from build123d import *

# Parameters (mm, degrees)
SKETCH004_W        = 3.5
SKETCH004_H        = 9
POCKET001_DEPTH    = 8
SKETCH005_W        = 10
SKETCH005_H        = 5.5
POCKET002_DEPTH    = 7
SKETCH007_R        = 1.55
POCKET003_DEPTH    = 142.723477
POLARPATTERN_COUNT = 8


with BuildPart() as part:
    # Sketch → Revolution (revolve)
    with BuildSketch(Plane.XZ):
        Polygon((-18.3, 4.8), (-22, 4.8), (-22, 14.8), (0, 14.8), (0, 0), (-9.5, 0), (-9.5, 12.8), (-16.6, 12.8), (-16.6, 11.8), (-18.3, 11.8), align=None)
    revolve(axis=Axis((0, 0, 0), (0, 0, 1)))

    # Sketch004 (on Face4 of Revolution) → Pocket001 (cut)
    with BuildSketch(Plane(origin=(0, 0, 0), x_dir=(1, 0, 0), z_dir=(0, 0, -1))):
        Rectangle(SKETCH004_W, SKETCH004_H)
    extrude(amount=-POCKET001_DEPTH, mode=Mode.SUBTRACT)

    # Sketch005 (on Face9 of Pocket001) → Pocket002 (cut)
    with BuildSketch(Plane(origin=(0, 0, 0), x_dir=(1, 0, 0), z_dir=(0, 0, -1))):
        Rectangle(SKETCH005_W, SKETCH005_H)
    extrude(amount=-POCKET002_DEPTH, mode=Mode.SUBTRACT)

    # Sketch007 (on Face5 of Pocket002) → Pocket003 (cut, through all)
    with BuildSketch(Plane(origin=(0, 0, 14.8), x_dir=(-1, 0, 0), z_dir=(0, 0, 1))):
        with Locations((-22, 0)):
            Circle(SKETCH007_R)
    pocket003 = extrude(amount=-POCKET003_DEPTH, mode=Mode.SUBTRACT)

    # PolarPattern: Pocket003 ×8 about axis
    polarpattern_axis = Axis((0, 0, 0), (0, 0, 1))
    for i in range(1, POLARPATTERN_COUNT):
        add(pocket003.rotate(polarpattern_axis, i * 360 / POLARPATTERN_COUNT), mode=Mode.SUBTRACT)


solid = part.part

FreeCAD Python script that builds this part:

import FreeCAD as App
import Part
import Sketcher

doc = App.newDocument("Part")
body = doc.addObject("PartDesign::Body", "Body")

# Sketch on XZ plane
sketch1 = body.newObject("Sketcher::SketchObject", "Sketch")
sketch1.AttachmentSupport = (doc.getObject("XZ_Plane"), [""])
sketch1.MapMode = "FlatFace"
sketch1.addGeometry([
    Part.LineSegment(App.Vector(-22, 4.8, 0), App.Vector(-18.3, 4.8, 0)),  # 0
    Part.LineSegment(App.Vector(-18.3, 4.8, 0), App.Vector(-18.3, 11.8, 0)),  # 1
    Part.LineSegment(App.Vector(-18.3, 11.8, 0), App.Vector(-16.6, 11.8, 0)),  # 2
    Part.LineSegment(App.Vector(-16.6, 11.8, 0), App.Vector(-16.6, 12.8, 0)),  # 3
    Part.LineSegment(App.Vector(-16.6, 12.8, 0), App.Vector(-9.5, 12.8, 0)),  # 4
    Part.LineSegment(App.Vector(-9.5, 12.8, 0), App.Vector(-9.5, 0, 0)),  # 5
    Part.LineSegment(App.Vector(-9.5, 0, 0), App.Vector(0, 0, 0)),  # 6
    Part.LineSegment(App.Vector(0, 0, 0), App.Vector(0, 14.8, 0)),  # 7
    Part.LineSegment(App.Vector(0, 14.8, 0), App.Vector(-22, 14.8, 0)),  # 8
    Part.LineSegment(App.Vector(-22, 14.8, 0), App.Vector(-22, 4.8, 0)),  # 9
], False)
sketch1.addConstraint([
    Sketcher.Constraint("Coincident", 0, 2, 1, 1),
    Sketcher.Constraint("Coincident", 1, 2, 2, 1),
    Sketcher.Constraint("Coincident", 2, 2, 3, 1),
    Sketcher.Constraint("Coincident", 3, 2, 4, 1),
    Sketcher.Constraint("Coincident", 4, 2, 5, 1),
    Sketcher.Constraint("Coincident", 5, 2, 6, 1),
    Sketcher.Constraint("Coincident", 6, 2, 7, 1),
    Sketcher.Constraint("Coincident", 7, 2, 8, 1),
    Sketcher.Constraint("Coincident", 8, 2, 9, 1),
    Sketcher.Constraint("Coincident", 9, 2, 0, 1),
    Sketcher.Constraint("Horizontal", 0),
    Sketcher.Constraint("Vertical", 1),
    Sketcher.Constraint("Horizontal", 2),
    Sketcher.Constraint("Vertical", 3),
    Sketcher.Constraint("Horizontal", 4),
    Sketcher.Constraint("Vertical", 5),
    Sketcher.Constraint("Horizontal", 6),
    Sketcher.Constraint("Vertical", 7),
    Sketcher.Constraint("Horizontal", 8),
    Sketcher.Constraint("Vertical", 9),
    Sketcher.Constraint("Coincident", 6, 2, -1, 1),
    Sketcher.Constraint("DistanceX", 8, 2, 8, 1, 22.0),
    Sketcher.Constraint("DistanceY", 1, 1, 1, 2, 7.0),
    Sketcher.Constraint("DistanceY", 3, 1, 3, 2, 1.0),
    Sketcher.Constraint("DistanceY", 9, 2, 9, 1, 10.0),
    Sketcher.Constraint("DistanceX", 0, 1, 0, 2, 3.7),
    Sketcher.Constraint("DistanceX", 2, 1, 2, 2, 1.7),
    Sketcher.Constraint("DistanceX", 4, 1, 4, 2, 7.1),
    Sketcher.Constraint("DistanceY", 5, 2, 5, 1, 12.8),
])
revolution = body.newObject("PartDesign::Revolution", "Revolution")
revolution.Profile = sketch1
revolution.ReferenceAxis = (sketch1, ["V_Axis"])
revolution.Angle = 360

# Sketch on XY plane
sketch2 = body.newObject("Sketcher::SketchObject", "Sketch001")
sketch2.AttachmentSupport = (doc.getObject("XY_Plane"), [""])
sketch2.MapMode = "FlatFace"
sketch2.addGeometry([
    Part.LineSegment(App.Vector(-1.8, -4.5, 0), App.Vector(-1.8, 4.5, 0)),
    Part.LineSegment(App.Vector(-1.8, 4.5, 0), App.Vector(1.8, 4.5, 0)),
    Part.LineSegment(App.Vector(1.8, 4.5, 0), App.Vector(1.8, -4.5, 0)),
    Part.LineSegment(App.Vector(1.8, -4.5, 0), App.Vector(-1.8, -4.5, 0)),
], False)
sketch2.addConstraint([
    Sketcher.Constraint("Coincident", 0, 2, 1, 1),
    Sketcher.Constraint("Coincident", 1, 2, 2, 1),
    Sketcher.Constraint("Coincident", 2, 2, 3, 1),
    Sketcher.Constraint("Coincident", 3, 2, 0, 1),
    Sketcher.Constraint("Vertical", 0),
    Sketcher.Constraint("Horizontal", 1),
    Sketcher.Constraint("Vertical", 2),
    Sketcher.Constraint("Horizontal", 3),
    Sketcher.Constraint("Symmetric", 0, 2, 2, 2, -1, 1),
    Sketcher.Constraint("DistanceY", 0, 1, 0, 2, 9.0),
    Sketcher.Constraint("DistanceX", 1, 1, 1, 2, 3.5),
])
pocket1 = body.newObject("PartDesign::Pocket", "Pocket")
pocket1.Profile = sketch2
pocket1.Length = 8
pocket1.Reversed = True

# Sketch on XY plane
sketch3 = body.newObject("Sketcher::SketchObject", "Sketch002")
sketch3.AttachmentSupport = (doc.getObject("XY_Plane"), [""])
sketch3.MapMode = "FlatFace"
sketch3.addGeometry([
    Part.LineSegment(App.Vector(-5, -3, 0), App.Vector(-5, 3, 0)),
    Part.LineSegment(App.Vector(-5, 3, 0), App.Vector(5, 3, 0)),
    Part.LineSegment(App.Vector(5, 3, 0), App.Vector(5, -3, 0)),
    Part.LineSegment(App.Vector(5, -3, 0), App.Vector(-5, -3, 0)),
], False)
sketch3.addConstraint([
    Sketcher.Constraint("Coincident", 0, 2, 1, 1),
    Sketcher.Constraint("Coincident", 1, 2, 2, 1),
    Sketcher.Constraint("Coincident", 2, 2, 3, 1),
    Sketcher.Constraint("Coincident", 3, 2, 0, 1),
    Sketcher.Constraint("Vertical", 0),
    Sketcher.Constraint("Horizontal", 1),
    Sketcher.Constraint("Vertical", 2),
    Sketcher.Constraint("Horizontal", 3),
    Sketcher.Constraint("Symmetric", 0, 2, 2, 2, -1, 1),
    Sketcher.Constraint("DistanceX", 1, 1, 1, 2, 10.0),
    Sketcher.Constraint("DistanceY", 0, 1, 0, 2, 5.5),
])
pocket2 = body.newObject("PartDesign::Pocket", "Pocket001")
pocket2.Profile = sketch3
pocket2.Length = 7
pocket2.Reversed = True

# Sketch on XY plane
sketch4 = body.newObject("Sketcher::SketchObject", "Sketch003")
sketch4.AttachmentSupport = (doc.getObject("XY_Plane"), [""])
sketch4.MapMode = "FlatFace"
sketch4.AttachmentOffset = App.Placement(App.Vector(0, 0, 14.8), App.Rotation())
sketch4.addGeometry(Part.Circle(App.Vector(22, 0, 0), App.Vector(0, 0, 1), 1.6), False)
sketch4.addConstraint([
    Sketcher.Constraint("PointOnObject", 0, 3, -1),
    Sketcher.Constraint("Diameter", 0, 3.1),
    Sketcher.Constraint("DistanceX", -1, 1, 0, 3, 22.0),
])
pocket3 = body.newObject("PartDesign::Pocket", "Pocket002")
pocket3.Profile = sketch4
pocket3.Type = "ThroughAll"
doc.recompute()

polarpattern = body.newObject("PartDesign::PolarPattern", "PolarPattern")
polarpattern.Originals = [pocket3]
polarpattern.Axis = (doc.getObject("Z_Axis"), [""])
polarpattern.Angle = 360
polarpattern.Occurrences = 8
body.Tip = polarpattern

doc.recompute()
